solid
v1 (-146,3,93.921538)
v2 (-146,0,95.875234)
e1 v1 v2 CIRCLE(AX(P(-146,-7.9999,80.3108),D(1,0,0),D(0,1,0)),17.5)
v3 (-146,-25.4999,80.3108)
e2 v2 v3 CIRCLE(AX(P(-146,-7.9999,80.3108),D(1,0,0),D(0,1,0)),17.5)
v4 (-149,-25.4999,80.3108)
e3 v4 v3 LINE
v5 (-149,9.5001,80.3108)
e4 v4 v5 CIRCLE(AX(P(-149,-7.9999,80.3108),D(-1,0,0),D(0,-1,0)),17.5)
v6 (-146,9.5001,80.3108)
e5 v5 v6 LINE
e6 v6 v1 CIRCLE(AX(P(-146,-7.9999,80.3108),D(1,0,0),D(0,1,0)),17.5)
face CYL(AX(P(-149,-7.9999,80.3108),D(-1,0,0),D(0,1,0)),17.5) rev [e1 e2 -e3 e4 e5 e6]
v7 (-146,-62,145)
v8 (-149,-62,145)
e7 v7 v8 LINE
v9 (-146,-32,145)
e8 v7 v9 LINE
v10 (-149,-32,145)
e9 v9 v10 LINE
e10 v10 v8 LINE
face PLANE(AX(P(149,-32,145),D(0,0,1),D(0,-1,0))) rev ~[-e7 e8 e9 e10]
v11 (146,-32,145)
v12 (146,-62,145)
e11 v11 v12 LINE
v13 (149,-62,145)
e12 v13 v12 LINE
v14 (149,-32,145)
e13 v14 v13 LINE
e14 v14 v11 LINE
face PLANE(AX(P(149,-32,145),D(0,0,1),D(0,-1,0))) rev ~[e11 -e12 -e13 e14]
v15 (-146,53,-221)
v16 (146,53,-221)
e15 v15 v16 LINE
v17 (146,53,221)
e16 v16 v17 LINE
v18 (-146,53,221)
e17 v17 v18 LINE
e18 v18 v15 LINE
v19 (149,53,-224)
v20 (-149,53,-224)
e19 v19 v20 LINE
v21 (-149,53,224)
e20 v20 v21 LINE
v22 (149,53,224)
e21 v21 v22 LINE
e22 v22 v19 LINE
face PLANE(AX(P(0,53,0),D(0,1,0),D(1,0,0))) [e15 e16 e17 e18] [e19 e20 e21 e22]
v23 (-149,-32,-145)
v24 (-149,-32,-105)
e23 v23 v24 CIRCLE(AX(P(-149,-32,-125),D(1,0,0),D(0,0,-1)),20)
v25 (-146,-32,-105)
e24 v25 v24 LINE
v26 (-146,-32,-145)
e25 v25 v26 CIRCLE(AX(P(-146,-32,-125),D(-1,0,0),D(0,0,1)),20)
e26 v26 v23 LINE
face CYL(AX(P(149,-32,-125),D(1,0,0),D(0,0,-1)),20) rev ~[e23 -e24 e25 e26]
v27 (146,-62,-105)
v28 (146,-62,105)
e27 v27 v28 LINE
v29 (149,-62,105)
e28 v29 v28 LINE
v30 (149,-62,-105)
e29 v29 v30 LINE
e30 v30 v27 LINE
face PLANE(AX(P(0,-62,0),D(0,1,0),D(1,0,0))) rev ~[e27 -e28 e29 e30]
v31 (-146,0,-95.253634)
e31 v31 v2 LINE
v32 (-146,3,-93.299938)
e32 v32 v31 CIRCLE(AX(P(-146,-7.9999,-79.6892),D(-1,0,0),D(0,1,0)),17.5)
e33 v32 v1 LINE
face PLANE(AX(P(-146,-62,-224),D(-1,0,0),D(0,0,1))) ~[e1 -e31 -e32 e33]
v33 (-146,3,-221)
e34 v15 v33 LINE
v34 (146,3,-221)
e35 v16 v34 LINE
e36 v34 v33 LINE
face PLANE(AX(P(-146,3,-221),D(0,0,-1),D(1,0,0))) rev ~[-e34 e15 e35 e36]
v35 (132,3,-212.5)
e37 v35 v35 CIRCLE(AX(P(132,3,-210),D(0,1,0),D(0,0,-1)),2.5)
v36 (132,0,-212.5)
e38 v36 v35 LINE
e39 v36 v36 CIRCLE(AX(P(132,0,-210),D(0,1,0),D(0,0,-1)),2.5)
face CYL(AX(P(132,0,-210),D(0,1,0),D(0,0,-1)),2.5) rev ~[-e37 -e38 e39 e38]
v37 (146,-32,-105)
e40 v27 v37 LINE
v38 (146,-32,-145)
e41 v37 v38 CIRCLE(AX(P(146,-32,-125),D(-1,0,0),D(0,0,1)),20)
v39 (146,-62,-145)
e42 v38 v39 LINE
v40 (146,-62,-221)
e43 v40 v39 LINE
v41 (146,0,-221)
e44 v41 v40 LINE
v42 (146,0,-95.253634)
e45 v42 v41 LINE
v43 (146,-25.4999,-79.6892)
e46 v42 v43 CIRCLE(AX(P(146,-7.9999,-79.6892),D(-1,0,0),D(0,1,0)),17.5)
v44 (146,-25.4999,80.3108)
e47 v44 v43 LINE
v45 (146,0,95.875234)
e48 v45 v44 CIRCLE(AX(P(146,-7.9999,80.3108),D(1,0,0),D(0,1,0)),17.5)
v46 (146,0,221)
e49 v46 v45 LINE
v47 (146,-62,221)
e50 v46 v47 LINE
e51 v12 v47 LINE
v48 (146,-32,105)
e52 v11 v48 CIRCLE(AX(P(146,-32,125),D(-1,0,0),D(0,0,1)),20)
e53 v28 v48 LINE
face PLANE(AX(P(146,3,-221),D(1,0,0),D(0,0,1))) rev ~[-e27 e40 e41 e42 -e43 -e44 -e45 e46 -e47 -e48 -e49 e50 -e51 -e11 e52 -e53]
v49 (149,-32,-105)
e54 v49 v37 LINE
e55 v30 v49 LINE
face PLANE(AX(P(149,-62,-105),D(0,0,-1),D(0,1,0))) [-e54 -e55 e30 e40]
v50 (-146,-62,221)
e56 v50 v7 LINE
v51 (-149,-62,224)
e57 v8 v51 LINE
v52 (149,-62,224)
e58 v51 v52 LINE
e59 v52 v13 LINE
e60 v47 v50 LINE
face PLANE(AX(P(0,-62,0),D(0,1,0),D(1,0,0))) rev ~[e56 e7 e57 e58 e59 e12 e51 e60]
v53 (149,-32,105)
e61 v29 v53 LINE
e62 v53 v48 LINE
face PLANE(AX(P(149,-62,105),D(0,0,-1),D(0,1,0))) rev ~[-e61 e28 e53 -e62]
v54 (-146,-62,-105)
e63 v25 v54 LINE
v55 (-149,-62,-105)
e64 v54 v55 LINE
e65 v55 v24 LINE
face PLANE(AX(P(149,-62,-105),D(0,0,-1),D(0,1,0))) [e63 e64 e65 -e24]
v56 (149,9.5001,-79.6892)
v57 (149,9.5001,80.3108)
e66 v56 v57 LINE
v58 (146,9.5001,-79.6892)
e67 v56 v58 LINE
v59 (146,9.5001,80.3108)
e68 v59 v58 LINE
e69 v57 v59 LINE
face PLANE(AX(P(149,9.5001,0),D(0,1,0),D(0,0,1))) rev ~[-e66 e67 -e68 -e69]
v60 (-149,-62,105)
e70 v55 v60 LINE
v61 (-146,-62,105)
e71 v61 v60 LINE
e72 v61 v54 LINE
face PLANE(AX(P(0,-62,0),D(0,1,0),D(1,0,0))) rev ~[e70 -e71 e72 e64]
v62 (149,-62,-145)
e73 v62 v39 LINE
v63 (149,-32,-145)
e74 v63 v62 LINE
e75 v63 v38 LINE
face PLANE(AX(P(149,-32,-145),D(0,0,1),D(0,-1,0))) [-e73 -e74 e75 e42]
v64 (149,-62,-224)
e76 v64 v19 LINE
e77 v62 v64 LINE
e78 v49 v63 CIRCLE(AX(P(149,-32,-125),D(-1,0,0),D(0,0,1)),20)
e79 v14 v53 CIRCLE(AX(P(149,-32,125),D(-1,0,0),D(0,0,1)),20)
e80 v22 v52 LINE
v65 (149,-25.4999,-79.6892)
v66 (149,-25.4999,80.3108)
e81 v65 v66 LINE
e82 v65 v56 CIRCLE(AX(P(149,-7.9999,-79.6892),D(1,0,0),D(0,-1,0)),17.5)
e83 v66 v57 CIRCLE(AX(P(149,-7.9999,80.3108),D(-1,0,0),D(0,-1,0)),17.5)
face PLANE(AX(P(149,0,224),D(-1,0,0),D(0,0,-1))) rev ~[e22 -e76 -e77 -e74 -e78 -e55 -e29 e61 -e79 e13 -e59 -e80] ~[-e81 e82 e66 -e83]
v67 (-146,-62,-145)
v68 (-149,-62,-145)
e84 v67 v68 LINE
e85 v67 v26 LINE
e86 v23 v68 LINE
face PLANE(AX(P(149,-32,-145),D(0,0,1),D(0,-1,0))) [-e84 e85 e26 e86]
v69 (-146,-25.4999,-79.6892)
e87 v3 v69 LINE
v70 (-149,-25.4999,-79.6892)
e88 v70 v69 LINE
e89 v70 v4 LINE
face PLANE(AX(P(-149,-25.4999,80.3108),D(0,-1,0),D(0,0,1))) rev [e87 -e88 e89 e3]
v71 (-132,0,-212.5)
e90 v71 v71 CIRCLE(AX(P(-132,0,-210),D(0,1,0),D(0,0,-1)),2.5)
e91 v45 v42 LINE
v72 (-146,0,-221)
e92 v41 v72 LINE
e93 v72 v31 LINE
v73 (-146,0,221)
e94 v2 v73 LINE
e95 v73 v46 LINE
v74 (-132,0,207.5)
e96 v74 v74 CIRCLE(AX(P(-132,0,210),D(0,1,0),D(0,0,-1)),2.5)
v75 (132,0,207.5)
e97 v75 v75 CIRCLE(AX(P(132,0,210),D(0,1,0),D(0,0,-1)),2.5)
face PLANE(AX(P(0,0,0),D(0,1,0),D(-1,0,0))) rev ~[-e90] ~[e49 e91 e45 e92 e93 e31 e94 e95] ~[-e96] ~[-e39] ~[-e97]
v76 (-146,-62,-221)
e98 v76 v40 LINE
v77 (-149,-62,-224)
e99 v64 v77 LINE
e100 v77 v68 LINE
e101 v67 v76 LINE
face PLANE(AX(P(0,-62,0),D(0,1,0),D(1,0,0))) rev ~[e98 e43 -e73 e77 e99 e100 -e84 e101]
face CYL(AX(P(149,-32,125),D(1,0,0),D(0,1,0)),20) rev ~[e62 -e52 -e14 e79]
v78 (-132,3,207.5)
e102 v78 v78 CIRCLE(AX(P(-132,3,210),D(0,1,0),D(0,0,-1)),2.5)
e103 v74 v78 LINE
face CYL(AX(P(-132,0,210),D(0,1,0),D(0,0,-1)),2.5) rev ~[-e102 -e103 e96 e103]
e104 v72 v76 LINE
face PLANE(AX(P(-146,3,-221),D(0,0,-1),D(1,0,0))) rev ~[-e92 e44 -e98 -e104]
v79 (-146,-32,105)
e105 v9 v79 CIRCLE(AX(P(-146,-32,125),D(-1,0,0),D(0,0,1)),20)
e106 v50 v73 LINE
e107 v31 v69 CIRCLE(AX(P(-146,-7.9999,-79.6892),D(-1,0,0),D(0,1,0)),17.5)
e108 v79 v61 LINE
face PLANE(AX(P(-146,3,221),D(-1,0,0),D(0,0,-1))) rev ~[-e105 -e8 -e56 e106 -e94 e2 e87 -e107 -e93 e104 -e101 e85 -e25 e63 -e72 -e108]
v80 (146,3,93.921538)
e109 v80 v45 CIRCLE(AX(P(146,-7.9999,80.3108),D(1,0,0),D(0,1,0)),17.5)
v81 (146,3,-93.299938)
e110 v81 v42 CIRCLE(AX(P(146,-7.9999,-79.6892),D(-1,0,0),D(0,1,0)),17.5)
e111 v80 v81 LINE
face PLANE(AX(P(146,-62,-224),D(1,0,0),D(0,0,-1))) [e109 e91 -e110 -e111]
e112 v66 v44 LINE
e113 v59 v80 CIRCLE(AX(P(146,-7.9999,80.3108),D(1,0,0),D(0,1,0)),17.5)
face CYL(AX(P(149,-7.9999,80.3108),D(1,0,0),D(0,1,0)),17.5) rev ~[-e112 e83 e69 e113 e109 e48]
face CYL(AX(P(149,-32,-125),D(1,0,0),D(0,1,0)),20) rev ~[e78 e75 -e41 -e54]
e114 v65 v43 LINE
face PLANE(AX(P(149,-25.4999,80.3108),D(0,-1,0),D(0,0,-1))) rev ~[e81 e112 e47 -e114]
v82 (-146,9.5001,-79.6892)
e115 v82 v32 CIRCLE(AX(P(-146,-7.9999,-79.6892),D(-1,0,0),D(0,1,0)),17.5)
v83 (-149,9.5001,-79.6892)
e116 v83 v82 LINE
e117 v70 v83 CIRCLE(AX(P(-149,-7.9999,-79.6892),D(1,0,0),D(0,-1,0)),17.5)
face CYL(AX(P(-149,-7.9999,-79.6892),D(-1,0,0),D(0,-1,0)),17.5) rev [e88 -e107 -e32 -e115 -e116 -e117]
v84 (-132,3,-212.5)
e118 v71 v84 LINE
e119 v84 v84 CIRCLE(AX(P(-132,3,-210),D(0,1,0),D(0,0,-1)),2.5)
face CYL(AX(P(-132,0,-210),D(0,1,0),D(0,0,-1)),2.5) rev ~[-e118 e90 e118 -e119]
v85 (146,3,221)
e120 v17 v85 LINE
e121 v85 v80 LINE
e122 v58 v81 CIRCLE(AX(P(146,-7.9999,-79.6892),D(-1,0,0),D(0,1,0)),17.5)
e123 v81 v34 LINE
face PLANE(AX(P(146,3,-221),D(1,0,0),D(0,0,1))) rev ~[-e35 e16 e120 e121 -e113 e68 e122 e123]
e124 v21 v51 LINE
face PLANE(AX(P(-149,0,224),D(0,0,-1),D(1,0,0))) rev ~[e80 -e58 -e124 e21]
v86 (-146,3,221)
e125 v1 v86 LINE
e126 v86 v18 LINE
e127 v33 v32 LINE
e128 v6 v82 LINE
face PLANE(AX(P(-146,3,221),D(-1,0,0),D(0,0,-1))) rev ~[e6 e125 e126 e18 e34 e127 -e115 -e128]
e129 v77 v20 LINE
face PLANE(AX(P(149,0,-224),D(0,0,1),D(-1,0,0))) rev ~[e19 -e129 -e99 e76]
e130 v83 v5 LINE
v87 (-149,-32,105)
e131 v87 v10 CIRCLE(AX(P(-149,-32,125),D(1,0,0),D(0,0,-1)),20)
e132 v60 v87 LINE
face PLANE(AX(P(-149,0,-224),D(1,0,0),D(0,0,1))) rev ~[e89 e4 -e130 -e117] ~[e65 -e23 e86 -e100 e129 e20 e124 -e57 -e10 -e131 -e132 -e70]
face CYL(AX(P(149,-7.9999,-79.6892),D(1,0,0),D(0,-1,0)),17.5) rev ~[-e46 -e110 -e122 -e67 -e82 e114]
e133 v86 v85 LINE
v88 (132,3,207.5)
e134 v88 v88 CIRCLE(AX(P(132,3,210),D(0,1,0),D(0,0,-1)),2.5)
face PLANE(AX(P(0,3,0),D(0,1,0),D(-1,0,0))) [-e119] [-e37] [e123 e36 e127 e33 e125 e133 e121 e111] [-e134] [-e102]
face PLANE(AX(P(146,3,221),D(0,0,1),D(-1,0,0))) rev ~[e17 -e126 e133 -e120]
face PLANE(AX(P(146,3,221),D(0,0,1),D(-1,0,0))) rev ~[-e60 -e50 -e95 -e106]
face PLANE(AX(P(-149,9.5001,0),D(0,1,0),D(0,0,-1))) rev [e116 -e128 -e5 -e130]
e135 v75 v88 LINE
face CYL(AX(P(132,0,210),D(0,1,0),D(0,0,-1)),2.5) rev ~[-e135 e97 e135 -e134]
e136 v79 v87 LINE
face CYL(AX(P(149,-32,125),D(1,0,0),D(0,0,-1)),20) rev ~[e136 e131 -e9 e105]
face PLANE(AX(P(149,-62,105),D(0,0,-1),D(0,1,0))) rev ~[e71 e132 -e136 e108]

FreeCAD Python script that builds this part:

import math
import FreeCAD as App
import Part
import Sketcher
Q = App.Units.Quantity


def add_polygon(sketch, points):
    """Adds a closed chain of lines whose ends are joined by coincident constraints."""
    first, n = sketch.GeometryCount, len(points)
    for a, b in zip(points, points[1:] + points[:1]):
        sketch.addGeometry(Part.LineSegment(App.Vector(*a, 0), App.Vector(*b, 0)), False)
    for i in range(n):
        sketch.addConstraint(Sketcher.Constraint("Coincident", first + i, 2, first + (i + 1) % n, 1))

doc = App.newDocument("Part")
body = doc.addObject("PartDesign::Body", "Body")

sketch1 = body.newObject("Sketcher::SketchObject", "Sketch")
sketch1.AttachmentSupport = (doc.getObject("XZ_Plane"), [""])
sketch1.MapMode = "FlatFace"
add_polygon(sketch1, [(149, 224), (149, -224), (-149, -224), (-149, 224)])
sketch1.addConstraint(Sketcher.Constraint("Vertical", 0))
sketch1.addConstraint(Sketcher.Constraint("Horizontal", 1))
sketch1.addConstraint(Sketcher.Constraint("Vertical", 2))
sketch1.addConstraint(Sketcher.Constraint("Horizontal", 3))
sketch1.addConstraint(Sketcher.Constraint("Symmetric", 0, 2, 2, 2, -1, 1))
sketch1.addConstraint(Sketcher.Constraint("DistanceX", 1, 2, 1, 1, Q("298 mm")))
sketch1.addConstraint(Sketcher.Constraint("DistanceY", 0, 2, 0, 1, Q("448 mm")))
pad1 = body.newObject("PartDesign::Pad", "Pad")
pad1.Profile = sketch1
pad1.Length = 3
pad1.Reversed = True

sketch2 = body.newObject("Sketcher::SketchObject", "Sketch001")
sketch2.AttachmentSupport = (doc.getObject("XZ_Plane"), [""])
sketch2.MapMode = "FlatFace"
sketch2.AttachmentOffset = App.Placement(App.Vector(0, 0, -3), App.Rotation())
add_polygon(sketch2, [(149, -224), (-149, -224), (-149, 224), (149, 224)])
add_polygon(sketch2, [(146, 221), (-146, 221), (-146, -221), (146, -221)])
sketch2.addConstraint(Sketcher.Constraint("Horizontal", 0))
sketch2.addConstraint(Sketcher.Constraint("Vertical", 1))
sketch2.addConstraint(Sketcher.Constraint("Horizontal", 2))
sketch2.addConstraint(Sketcher.Constraint("Vertical", 3))
sketch2.addConstraint(Sketcher.Constraint("Horizontal", 4))
sketch2.addConstraint(Sketcher.Constraint("Vertical", 5))
sketch2.addConstraint(Sketcher.Constraint("Horizontal", 6))
sketch2.addConstraint(Sketcher.Constraint("Vertical", 7))
sketch2.addConstraint(Sketcher.Constraint("Symmetric", 0, 2, 2, 2, -1, 1))
sketch2.addConstraint(Sketcher.Constraint("Symmetric", 4, 2, 6, 2, -1, 1))
sketch2.addConstraint(Sketcher.Constraint("DistanceX", 1, 2, 4, 2, Q("3 mm")))
sketch2.addConstraint(Sketcher.Constraint("DistanceY", 4, 2, 1, 2, Q("3 mm")))
sketch2.addConstraint(Sketcher.Constraint("DistanceX", 0, 2, 0, 1, Q("298 mm")))
sketch2.addConstraint(Sketcher.Constraint("DistanceY", 1, 1, 1, 2, Q("448 mm")))
pad2 = body.newObject("PartDesign::Pad", "Pad001")
pad2.Profile = sketch2
pad2.Type = "TwoLengths"
pad2.Length = 50
pad2.Length2 = 65
pad2.Reversed = True

sketch3 = body.newObject("Sketcher::SketchObject", "Sketch002")
sketch3.AttachmentSupport = (doc.getObject("XZ_Plane"), [""])
sketch3.MapMode = "FlatFace"
sketch3.addGeometry(Part.Circle(App.Vector(132, -210, 0), App.Vector(0, 0, 1), 2.5), False)
sketch3.addGeometry(Part.Circle(App.Vector(132, 210, 0), App.Vector(0, 0, 1), 2.5), False)
sketch3.addGeometry(Part.Circle(App.Vector(-132, 210, 0), App.Vector(0, 0, 1), 2.5), False)
sketch3.addGeometry(Part.Circle(App.Vector(-132, -210, 0), App.Vector(0, 0, 1), 2.5), False)
sketch3.addConstraint(Sketcher.Constraint("Equal", 0, 1))
sketch3.addConstraint(Sketcher.Constraint("Equal", 1, 2))
sketch3.addConstraint(Sketcher.Constraint("Equal", 2, 3))
sketch3.addConstraint(Sketcher.Constraint("Symmetric", 0, 3, 2, 3, -1, 1))
sketch3.addConstraint(Sketcher.Constraint("Symmetric", 1, 3, 3, 3, -1, 1))
sketch3.addConstraint(Sketcher.Constraint("Symmetric", 1, 3, 2, 3, -2))
sketch3.addConstraint(Sketcher.Constraint("Diameter", 0, Q("5 mm")))
sketch3.addConstraint(Sketcher.Constraint("DistanceX", -1, 1, 0, 3, Q("132 mm")))
sketch3.addConstraint(Sketcher.Constraint("DistanceY", 0, 3, -1, 1, Q("210 mm")))
doc.recompute()
hole = body.newObject("PartDesign::Hole", "Hole")
hole.Profile = sketch3
hole.ThreadType = "None"
hole.Diameter = 5
hole.DepthType = "ThroughAll"

sketch4 = body.newObject("Sketcher::SketchObject", "Sketch003")
sketch4.AttachmentSupport = (doc.getObject("YZ_Plane"), [""])
sketch4.MapMode = "FlatFace"
sketch4.AttachmentOffset = App.Placement(App.Vector(0, 0, 149), App.Rotation())
sketch4.addGeometry(Part.LineSegment(App.Vector(-62, -105, 0), App.Vector(-62, -145, 0)), False)
sketch4.addGeometry(Part.LineSegment(App.Vector(-62, -145, 0), App.Vector(-32, -145, 0)), False)
sketch4.addGeometry(Part.ArcOfCircle(Part.Circle(App.Vector(-32, -125, 0), App.Vector(0, 0, 1), 20), math.radians(-90), math.radians(90)), False)
sketch4.addGeometry(Part.LineSegment(App.Vector(-32, -105, 0), App.Vector(-62, -105, 0)), False)
sketch4.addConstraint(Sketcher.Constraint("Coincident", 0, 2, 1, 1))
sketch4.addConstraint(Sketcher.Constraint("Tangent", 1, 2, 2, 1))
sketch4.addConstraint(Sketcher.Constraint("Tangent", 2, 2, 3, 1))
sketch4.addConstraint(Sketcher.Constraint("Coincident", 3, 2, 0, 1))
sketch4.addConstraint(Sketcher.Constraint("Vertical", 0))
sketch4.addConstraint(Sketcher.Constraint("Horizontal", 1))
sketch4.addConstraint(Sketcher.Constraint("Horizontal", 3))
sketch4.addConstraint(Sketcher.Constraint("Radius", 2, Q("20 mm")))
sketch4.addConstraint(Sketcher.Constraint("DistanceX", 1, 1, 1, 2, Q("30 mm")))
sketch4.addConstraint(Sketcher.Constraint("DistanceX", 2, 3, -1, 1, Q("32 mm")))
sketch4.addConstraint(Sketcher.Constraint("DistanceY", 2, 3, -1, 1, Q("125 mm")))
pocket1 = body.newObject("PartDesign::Pocket", "Pocket")
pocket1.Profile = sketch4
pocket1.Type = "ThroughAll"

sketch5 = body.newObject("Sketcher::SketchObject", "Sketch004")
sketch5.AttachmentSupport = (doc.getObject("YZ_Plane"), [""])
sketch5.MapMode = "FlatFace"
sketch5.AttachmentOffset = App.Placement(App.Vector(0, 0, 149), App.Rotation())
sketch5.addGeometry(Part.LineSegment(App.Vector(-62, 145, 0), App.Vector(-62, 105, 0)), False)
sketch5.addGeometry(Part.LineSegment(App.Vector(-62, 105, 0), App.Vector(-32, 105, 0)), False)
sketch5.addGeometry(Part.ArcOfCircle(Part.Circle(App.Vector(-32, 125, 0), App.Vector(0, 0, 1), 20), math.radians(-90), math.radians(90)), False)
sketch5.addGeometry(Part.LineSegment(App.Vector(-32, 145, 0), App.Vector(-62, 145, 0)), False)
sketch5.addConstraint(Sketcher.Constraint("Coincident", 0, 2, 1, 1))
sketch5.addConstraint(Sketcher.Constraint("Tangent", 1, 2, 2, 1))
sketch5.addConstraint(Sketcher.Constraint("Tangent", 2, 2, 3, 1))
sketch5.addConstraint(Sketcher.Constraint("Coincident", 3, 2, 0, 1))
sketch5.addConstraint(Sketcher.Constraint("Vertical", 0))
sketch5.addConstraint(Sketcher.Constraint("Horizontal", 1))
sketch5.addConstraint(Sketcher.Constraint("Horizontal", 3))
sketch5.addConstraint(Sketcher.Constraint("Radius", 2, Q("20 mm")))
sketch5.addConstraint(Sketcher.Constraint("DistanceX", 1, 1, 1, 2, Q("30 mm")))
sketch5.addConstraint(Sketcher.Constraint("DistanceX", 2, 3, -1, 1, Q("32 mm")))
sketch5.addConstraint(Sketcher.Constraint("DistanceY", -1, 1, 2, 3, Q("125 mm")))
pocket2 = body.newObject("PartDesign::Pocket", "Pocket001")
pocket2.Profile = sketch5
pocket2.Type = "ThroughAll"

sketch6 = body.newObject("Sketcher::SketchObject", "Sketch005")
sketch6.AttachmentSupport = (doc.getObject("YZ_Plane"), [""])
sketch6.MapMode = "FlatFace"
sketch6.AttachmentOffset = App.Placement(App.Vector(0, 0, 149), App.Rotation())
sketch6.addGeometry(Part.LineSegment(App.Vector(-25, 80, 0), App.Vector(-25, -80, 0)), False)
sketch6.addGeometry(Part.ArcOfCircle(Part.Circle(App.Vector(-8, -80, 0), App.Vector(0, 0, 1), 18), math.radians(180), math.radians(360)), False)
sketch6.addGeometry(Part.LineSegment(App.Vector(10, -80, 0), App.Vector(10, 80, 0)), False)
sketch6.addGeometry(Part.ArcOfCircle(Part.Circle(App.Vector(-8, 80, 0), App.Vector(0, 0, 1), 18), math.radians(0), math.radians(180)), False)
sketch6.addConstraint(Sketcher.Constraint("Tangent", 0, 2, 1, 1))
sketch6.addConstraint(Sketcher.Constraint("Tangent", 1, 2, 2, 1))
sketch6.addConstraint(Sketcher.Constraint("Tangent", 2, 2, 3, 1))
sketch6.addConstraint(Sketcher.Constraint("Tangent", 3, 2, 0, 1))
sketch6.addConstraint(Sketcher.Constraint("Vertical", 0))
sketch6.addConstraint(Sketcher.Constraint("Vertical", 2))
sketch6.addConstraint(Sketcher.Constraint("Radius", 1, Q("17.5 mm")))
sketch6.addConstraint(Sketcher.Constraint("DistanceY", 0, 2, 0, 1, Q("160 mm")))
sketch6.addConstraint(Sketcher.Constraint("DistanceX", 1, 3, -1, 1, Q("8 mm")))
sketch6.addConstraint(Sketcher.Constraint("DistanceY", 1, 3, -1, 1, Q("79.6892 mm")))
pocket3 = body.newObject("PartDesign::Pocket", "Pocket002")
pocket3.Profile = sketch6
pocket3.Length = 3
doc.recompute()

mirrored = body.newObject("PartDesign::Mirrored", "Mirrored")
mirrored.Originals = [pocket3]
mirrored.MirrorPlane = (doc.getObject("YZ_Plane"), [""])
body.Tip = mirrored

doc.recompute()
